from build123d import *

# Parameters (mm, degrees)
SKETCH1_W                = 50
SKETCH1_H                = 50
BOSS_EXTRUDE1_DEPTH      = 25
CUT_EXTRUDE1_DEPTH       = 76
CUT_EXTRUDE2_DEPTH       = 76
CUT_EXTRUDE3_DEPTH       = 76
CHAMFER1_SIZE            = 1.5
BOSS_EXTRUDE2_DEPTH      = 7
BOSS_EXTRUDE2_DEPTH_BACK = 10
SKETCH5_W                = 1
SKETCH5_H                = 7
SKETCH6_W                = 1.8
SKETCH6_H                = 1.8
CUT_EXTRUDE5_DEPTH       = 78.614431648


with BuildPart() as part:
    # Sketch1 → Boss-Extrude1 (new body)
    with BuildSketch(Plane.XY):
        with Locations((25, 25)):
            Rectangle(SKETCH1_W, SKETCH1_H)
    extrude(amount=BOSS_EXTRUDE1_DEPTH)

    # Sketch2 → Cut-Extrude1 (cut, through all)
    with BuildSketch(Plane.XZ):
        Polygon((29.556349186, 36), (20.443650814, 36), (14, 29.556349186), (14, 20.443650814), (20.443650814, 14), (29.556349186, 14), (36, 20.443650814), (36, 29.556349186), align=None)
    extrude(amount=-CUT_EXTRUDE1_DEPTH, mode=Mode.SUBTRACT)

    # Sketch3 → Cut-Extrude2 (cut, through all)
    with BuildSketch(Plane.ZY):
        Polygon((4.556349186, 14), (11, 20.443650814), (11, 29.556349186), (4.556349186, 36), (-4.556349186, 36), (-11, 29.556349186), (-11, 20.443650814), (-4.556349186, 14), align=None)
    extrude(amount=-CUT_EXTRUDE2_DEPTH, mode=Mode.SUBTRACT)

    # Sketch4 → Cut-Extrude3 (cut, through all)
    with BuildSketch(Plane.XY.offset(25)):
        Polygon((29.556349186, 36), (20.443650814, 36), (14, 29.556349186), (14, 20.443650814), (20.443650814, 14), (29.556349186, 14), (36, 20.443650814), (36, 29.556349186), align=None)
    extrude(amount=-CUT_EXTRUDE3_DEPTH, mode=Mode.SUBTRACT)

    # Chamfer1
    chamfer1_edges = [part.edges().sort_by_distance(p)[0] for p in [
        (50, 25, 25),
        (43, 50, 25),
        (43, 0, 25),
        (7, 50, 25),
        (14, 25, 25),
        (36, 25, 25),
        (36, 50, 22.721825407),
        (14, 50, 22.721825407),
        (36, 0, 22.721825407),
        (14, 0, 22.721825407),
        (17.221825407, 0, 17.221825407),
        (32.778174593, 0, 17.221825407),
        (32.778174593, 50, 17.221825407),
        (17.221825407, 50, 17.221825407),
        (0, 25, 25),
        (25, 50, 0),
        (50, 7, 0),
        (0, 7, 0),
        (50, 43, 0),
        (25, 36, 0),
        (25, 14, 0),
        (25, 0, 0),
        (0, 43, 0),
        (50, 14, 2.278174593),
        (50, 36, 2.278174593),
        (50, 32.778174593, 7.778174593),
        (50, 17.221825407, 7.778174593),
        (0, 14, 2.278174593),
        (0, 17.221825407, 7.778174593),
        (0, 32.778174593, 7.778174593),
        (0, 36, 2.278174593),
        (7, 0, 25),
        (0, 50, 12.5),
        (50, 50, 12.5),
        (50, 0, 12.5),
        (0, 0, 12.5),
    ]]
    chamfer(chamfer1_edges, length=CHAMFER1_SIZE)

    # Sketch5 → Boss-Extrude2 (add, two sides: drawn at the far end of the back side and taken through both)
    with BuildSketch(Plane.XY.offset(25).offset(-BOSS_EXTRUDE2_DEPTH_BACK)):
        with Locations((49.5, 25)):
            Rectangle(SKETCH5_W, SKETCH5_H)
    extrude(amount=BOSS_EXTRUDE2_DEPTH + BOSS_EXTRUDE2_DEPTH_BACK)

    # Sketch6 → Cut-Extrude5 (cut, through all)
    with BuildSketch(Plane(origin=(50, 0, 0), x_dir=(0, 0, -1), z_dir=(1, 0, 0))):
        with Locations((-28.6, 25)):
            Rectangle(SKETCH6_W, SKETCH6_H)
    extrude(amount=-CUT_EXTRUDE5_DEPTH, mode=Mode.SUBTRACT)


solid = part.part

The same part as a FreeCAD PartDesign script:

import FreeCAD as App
import Part
import Sketcher

V = App.Vector
Q = App.Units.Quantity


def edges_at(feature, points):
    """Names of the edges that pass closest to the given points."""
    edges = feature.Shape.Edges
    near = lambda p: min(range(len(edges)), key=lambda i: edges[i].distToShape(Part.Vertex(*p))[0])
    return sorted({f"Edge{near(p) + 1}" for p in points})

doc = App.newDocument("Part")
body = doc.addObject("PartDesign::Body", "Body")

sketch1 = body.newObject("Sketcher::SketchObject", "Sketch")
sketch1.AttachmentSupport = (doc.getObject("XY_Plane"), [""])
sketch1.MapMode = "FlatFace"
sketch1.addGeometry([
    Part.LineSegment(V(0, 50, 0), V(0, 0, 0)),
    Part.LineSegment(V(0, 0, 0), V(50, 0, 0)),
    Part.LineSegment(V(50, 0, 0), V(50, 50, 0)),
    Part.LineSegment(V(50, 50, 0), V(0, 50, 0)),
], False)
sketch1.addConstraint([
    Sketcher.Constraint("Coincident", 0, 2, 1, 1),
    Sketcher.Constraint("Coincident", 1, 2, 2, 1),
    Sketcher.Constraint("Coincident", 2, 2, 3, 1),
    Sketcher.Constraint("Coincident", 3, 2, 0, 1),
    Sketcher.Constraint("Vertical", 0),
    Sketcher.Constraint("Horizontal", 1),
    Sketcher.Constraint("Vertical", 2),
    Sketcher.Constraint("Horizontal", 3),
    Sketcher.Constraint("Coincident", 0, 2, -1, 1),
    Sketcher.Constraint("Equal", 3, 0),
    Sketcher.Constraint("DistanceX", 1, 1, 1, 2, Q("50 mm")),
])
pad1 = body.newObject("PartDesign::Pad", "Pad")
pad1.Profile = sketch1
pad1.Length = 25

sketch2 = body.newObject("Sketcher::SketchObject", "Sketch001")
sketch2.AttachmentSupport = (doc.getObject("XZ_Plane"), [""])
sketch2.MapMode = "FlatFace"
sketch2.addGeometry([
    Part.LineSegment(V(29.556349, 36, 0), V(20.443651, 36, 0)),
    Part.LineSegment(V(20.443651, 36, 0), V(14, 29.556349, 0)),
    Part.LineSegment(V(14, 29.556349, 0), V(14, 20.443651, 0)),
    Part.LineSegment(V(14, 20.443651, 0), V(20.443651, 14, 0)),
    Part.LineSegment(V(20.443651, 14, 0), V(29.556349, 14, 0)),
    Part.LineSegment(V(29.556349, 14, 0), V(36, 20.443651, 0)),
    Part.LineSegment(V(36, 20.443651, 0), V(36, 29.556349, 0)),
    Part.LineSegment(V(36, 29.556349, 0), V(29.556349, 36, 0)),
], False)
sketch2.addConstraint([
    Sketcher.Constraint("Coincident", 0, 2, 1, 1),
    Sketcher.Constraint("Coincident", 1, 2, 2, 1),
    Sketcher.Constraint("Coincident", 2, 2, 3, 1),
    Sketcher.Constraint("Coincident", 3, 2, 4, 1),
    Sketcher.Constraint("Coincident", 4, 2, 5, 1),
    Sketcher.Constraint("Coincident", 5, 2, 6, 1),
    Sketcher.Constraint("Coincident", 6, 2, 7, 1),
    Sketcher.Constraint("Coincident", 7, 2, 0, 1),
    Sketcher.Constraint("Horizontal", 0),
    Sketcher.Constraint("Vertical", 2),
    Sketcher.Constraint("Horizontal", 4),
    Sketcher.Constraint("Vertical", 6),
    Sketcher.Constraint("Perpendicular", 1, 3),
    Sketcher.Constraint("Perpendicular", 3, 5),
    Sketcher.Constraint("Perpendicular", 5, 7),
    Sketcher.Constraint("Horizontal", 2, 2, 5, 2),
    Sketcher.Constraint("Horizontal", 1, 2, 6, 2),
    Sketcher.Constraint("Vertical", 0, 2, 3, 2),
    Sketcher.Constraint("Vertical", 4, 2, 7, 2),
    Sketcher.Constraint("Equal", 4, 2),
    Sketcher.Constraint("DistanceY", -1, 1, 0, 2, Q("36 mm")),
    Sketcher.Constraint("DistanceX", -1, 1, 1, 2, Q("14 mm")),
    Sketcher.Constraint("DistanceY", -1, 1, 3, 2, Q("14 mm")),
    Sketcher.Constraint("DistanceX", 0, 2, 0, 1, Q("9.112698 mm")),
])
pocket1 = body.newObject("PartDesign::Pocket", "Pocket")
pocket1.Profile = sketch2
pocket1.Type = "ThroughAll"

sketch3 = body.newObject("Sketcher::SketchObject", "Sketch002")
sketch3.AttachmentSupport = (doc.getObject("YZ_Plane"), [""])
sketch3.MapMode = "FlatFace"
sketch3.addGeometry([
    Part.LineSegment(V(14, 4.556349, 0), V(20.443651, 11, 0)),
    Part.LineSegment(V(20.443651, 11, 0), V(29.556349, 11, 0)),
    Part.LineSegment(V(29.556349, 11, 0), V(36, 4.556349, 0)),
    Part.LineSegment(V(36, 4.556349, 0), V(36, -4.556349, 0)),
    Part.LineSegment(V(36, -4.556349, 0), V(29.556349, -11, 0)),
    Part.LineSegment(V(29.556349, -11, 0), V(20.443651, -11, 0)),
    Part.LineSegment(V(20.443651, -11, 0), V(14, -4.556349, 0)),
    Part.LineSegment(V(14, -4.556349, 0), V(14, 4.556349, 0)),
], False)
sketch3.addConstraint([
    Sketcher.Constraint("Coincident", 0, 2, 1, 1),
    Sketcher.Constraint("Coincident", 1, 2, 2, 1),
    Sketcher.Constraint("Coincident", 2, 2, 3, 1),
    Sketcher.Constraint("Coincident", 3, 2, 4, 1),
    Sketcher.Constraint("Coincident", 4, 2, 5, 1),
    Sketcher.Constraint("Coincident", 5, 2, 6, 1),
    Sketcher.Constraint("Coincident", 6, 2, 7, 1),
    Sketcher.Constraint("Coincident", 7, 2, 0, 1),
    Sketcher.Constraint("Horizontal", 1),
    Sketcher.Constraint("Vertical", 3),
    Sketcher.Constraint("Horizontal", 5),
    Sketcher.Constraint("Vertical", 7),
    Sketcher.Constraint("Symmetric", 1, 2, 4, 2, -1),
    Sketcher.Constraint("Perpendicular", 0, 2),
    Sketcher.Constraint("Perpendicular", 2, 4),
    Sketcher.Constraint("Perpendicular", 4, 6),
    Sketcher.Constraint("Horizontal", 3, 2, 6, 2),
    Sketcher.Constraint("Horizontal", 2, 2, 7, 2),
    Sketcher.Constraint("Vertical", 0, 2, 5, 2),
    Sketcher.Constraint("Equal", 5, 3),
    Sketcher.Constraint("DistanceY", -1, 1, 0, 2, Q("11 mm")),
    Sketcher.Constraint("DistanceX", -1, 1, 2, 2, Q("36 mm")),
    Sketcher.Constraint("DistanceX", 1, 1, 1, 2, Q("9.112698 mm")),
])
pocket2 = body.newObject("PartDesign::Pocket", "Pocket001")
pocket2.Profile = sketch3
pocket2.Type = "ThroughAll"
pocket2.Reversed = True

sketch4 = body.newObject("Sketcher::SketchObject", "Sketch003")
sketch4.AttachmentSupport = (doc.getObject("XY_Plane"), [""])
sketch4.MapMode = "FlatFace"
sketch4.AttachmentOffset = App.Placement(V(0, 0, 25), App.Rotation())
sketch4.addGeometry([
    Part.LineSegment(V(29.556349, 36, 0), V(20.443651, 36, 0)),
    Part.LineSegment(V(20.443651, 36, 0), V(14, 29.556349, 0)),
    Part.LineSegment(V(14, 29.556349, 0), V(14, 20.443651, 0)),
    Part.LineSegment(V(14, 20.443651, 0), V(20.443651, 14, 0)),
    Part.LineSegment(V(20.443651, 14, 0), V(29.556349, 14, 0)),
    Part.LineSegment(V(29.556349, 14, 0), V(36, 20.443651, 0)),
    Part.LineSegment(V(36, 20.443651, 0), V(36, 29.556349, 0)),
    Part.LineSegment(V(36, 29.556349, 0), V(29.556349, 36, 0)),
], False)
sketch4.addConstraint([
    Sketcher.Constraint("Coincident", 0, 2, 1, 1),
    Sketcher.Constraint("Coincident", 1, 2, 2, 1),
    Sketcher.Constraint("Coincident", 2, 2, 3, 1),
    Sketcher.Constraint("Coincident", 3, 2, 4, 1),
    Sketcher.Constraint("Coincident", 4, 2, 5, 1),
    Sketcher.Constraint("Coincident", 5, 2, 6, 1),
    Sketcher.Constraint("Coincident", 6, 2, 7, 1),
    Sketcher.Constraint("Coincident", 7, 2, 0, 1),
    Sketcher.Constraint("Horizontal", 0),
    Sketcher.Constraint("Vertical", 2),
    Sketcher.Constraint("Horizontal", 4),
    Sketcher.Constraint("Vertical", 6),
    Sketcher.Constraint("Perpendicular", 1, 3),
    Sketcher.Constraint("Perpendicular", 3, 5),
    Sketcher.Constraint("Perpendicular", 5, 7),
    Sketcher.Constraint("Horizontal", 2, 2, 5, 2),
    Sketcher.Constraint("Horizontal", 1, 2, 6, 2),
    Sketcher.Constraint("Vertical", 0, 2, 3, 2),
    Sketcher.Constraint("Vertical", 4, 2, 7, 2),
    Sketcher.Constraint("Equal", 4, 2),
    Sketcher.Constraint("DistanceY", -1, 1, 0, 2, Q("36 mm")),
    Sketcher.Constraint("DistanceX", -1, 1, 1, 2, Q("14 mm")),
    Sketcher.Constraint("DistanceY", -1, 1, 3, 2, Q("14 mm")),
    Sketcher.Constraint("DistanceX", 0, 2, 0, 1, Q("9.112698 mm")),
])
pocket3 = body.newObject("PartDesign::Pocket", "Pocket002")
pocket3.Profile = sketch4
pocket3.Type = "ThroughAll"
doc.recompute()

chamfer = body.newObject("PartDesign::Chamfer", "Chamfer")
chamfer.Base = (pocket3, edges_at(pocket3, [
    (50, 25, 25),
    (43, 50, 25),
    (43, 0, 25),
    (7, 50, 25),
    (14, 25, 25),
    (36, 25, 25),
    (36, 50, 22.722),
    (14, 50, 22.722),
    (36, 0, 22.722),
    (14, 0, 22.722),
    (17.222, 0, 17.222),
    (32.778, 0, 17.222),
    (32.778, 50, 17.222),
    (17.222, 50, 17.222),
    (0, 25, 25),
    (25, 50, 0),
    (50, 7, 0),
    (0, 7, 0),
    (50, 43, 0),
    (25, 36, 0),
    (25, 14, 0),
    (25, 0, 0),
    (0, 43, 0),
    (50, 14, 2.278),
    (50, 36, 2.278),
    (50, 32.778, 7.778),
    (50, 17.222, 7.778),
    (0, 14, 2.278),
    (0, 17.222, 7.778),
    (0, 32.778, 7.778),
    (0, 36, 2.278),
    (7, 0, 25),
    (0, 50, 12.5),
    (50, 50, 12.5),
    (50, 0, 12.5),
    (0, 0, 12.5),
]))
chamfer.Size = 1.5

sketch5 = body.newObject("Sketcher::SketchObject", "Sketch004")
sketch5.AttachmentSupport = (doc.getObject("XY_Plane"), [""])
sketch5.MapMode = "FlatFace"
sketch5.AttachmentOffset = App.Placement(V(0, 0, 25), App.Rotation())
sketch5.addGeometry([
    Part.LineSegment(V(49, 28.5, 0), V(49, 21.5, 0)),
    Part.LineSegment(V(49, 21.5, 0), V(50, 21.5, 0)),
    Part.LineSegment(V(50, 21.5, 0), V(50, 28.5, 0)),
    Part.LineSegment(V(50, 28.5, 0), V(49, 28.5, 0)),
], False)
sketch5.addConstraint([
    Sketcher.Constraint("Coincident", 0, 2, 1, 1),
    Sketcher.Constraint("Coincident", 1, 2, 2, 1),
    Sketcher.Constraint("Coincident", 2, 2, 3, 1),
    Sketcher.Constraint("Coincident", 3, 2, 0, 1),
    Sketcher.Constraint("Vertical", 0),
    Sketcher.Constraint("Horizontal", 1),
    Sketcher.Constraint("Vertical", 2),
    Sketcher.Constraint("Horizontal", 3),
    Sketcher.Constraint("DistanceX", 1, 1, 1, 2, Q("1 mm")),
    Sketcher.Constraint("DistanceY", 0, 2, 0, 1, Q("7 mm")),
    Sketcher.Constraint("DistanceX", -1, 1, 0, 2, Q("49 mm")),
    Sketcher.Constraint("DistanceY", -1, 1, 0, 2, Q("21.5 mm")),
])
pad2 = body.newObject("PartDesign::Pad", "Pad001")
pad2.Profile = sketch5
pad2.Type = "TwoLengths"
pad2.Length = 7
pad2.Length2 = 10

sketch6 = body.newObject("Sketcher::SketchObject", "Sketch005")
sketch6.AttachmentSupport = (doc.getObject("YZ_Plane"), [""])
sketch6.MapMode = "FlatFace"
sketch6.AttachmentOffset = App.Placement(V(0, 0, 50), App.Rotation())
sketch6.addGeometry([
    Part.LineSegment(V(25.9, 29.5, 0), V(24.1, 29.5, 0)),
    Part.LineSegment(V(24.1, 29.5, 0), V(24.1, 27.7, 0)),
    Part.LineSegment(V(24.1, 27.7, 0), V(25.9, 27.7, 0)),
    Part.LineSegment(V(25.9, 27.7, 0), V(25.9, 29.5, 0)),
], False)
sketch6.addConstraint([
    Sketcher.Constraint("Coincident", 0, 2, 1, 1),
    Sketcher.Constraint("Coincident", 1, 2, 2, 1),
    Sketcher.Constraint("Coincident", 2, 2, 3, 1),
    Sketcher.Constraint("Coincident", 3, 2, 0, 1),
    Sketcher.Constraint("Horizontal", 0),
    Sketcher.Constraint("Vertical", 1),
    Sketcher.Constraint("Horizontal", 2),
    Sketcher.Constraint("Vertical", 3),
    Sketcher.Constraint("Equal", 2, 1),
    Sketcher.Constraint("DistanceX", 0, 2, 0, 1, Q("1.8 mm")),
    Sketcher.Constraint("DistanceX", -1, 1, 0, 2, Q("24.1 mm")),
    Sketcher.Constraint("DistanceY", -1, 1, 0, 2, Q("29.5 mm")),
])
pocket4 = body.newObject("PartDesign::Pocket", "Pocket003")
pocket4.Profile = sketch6
pocket4.Type = "ThroughAll"

doc.recompute()
